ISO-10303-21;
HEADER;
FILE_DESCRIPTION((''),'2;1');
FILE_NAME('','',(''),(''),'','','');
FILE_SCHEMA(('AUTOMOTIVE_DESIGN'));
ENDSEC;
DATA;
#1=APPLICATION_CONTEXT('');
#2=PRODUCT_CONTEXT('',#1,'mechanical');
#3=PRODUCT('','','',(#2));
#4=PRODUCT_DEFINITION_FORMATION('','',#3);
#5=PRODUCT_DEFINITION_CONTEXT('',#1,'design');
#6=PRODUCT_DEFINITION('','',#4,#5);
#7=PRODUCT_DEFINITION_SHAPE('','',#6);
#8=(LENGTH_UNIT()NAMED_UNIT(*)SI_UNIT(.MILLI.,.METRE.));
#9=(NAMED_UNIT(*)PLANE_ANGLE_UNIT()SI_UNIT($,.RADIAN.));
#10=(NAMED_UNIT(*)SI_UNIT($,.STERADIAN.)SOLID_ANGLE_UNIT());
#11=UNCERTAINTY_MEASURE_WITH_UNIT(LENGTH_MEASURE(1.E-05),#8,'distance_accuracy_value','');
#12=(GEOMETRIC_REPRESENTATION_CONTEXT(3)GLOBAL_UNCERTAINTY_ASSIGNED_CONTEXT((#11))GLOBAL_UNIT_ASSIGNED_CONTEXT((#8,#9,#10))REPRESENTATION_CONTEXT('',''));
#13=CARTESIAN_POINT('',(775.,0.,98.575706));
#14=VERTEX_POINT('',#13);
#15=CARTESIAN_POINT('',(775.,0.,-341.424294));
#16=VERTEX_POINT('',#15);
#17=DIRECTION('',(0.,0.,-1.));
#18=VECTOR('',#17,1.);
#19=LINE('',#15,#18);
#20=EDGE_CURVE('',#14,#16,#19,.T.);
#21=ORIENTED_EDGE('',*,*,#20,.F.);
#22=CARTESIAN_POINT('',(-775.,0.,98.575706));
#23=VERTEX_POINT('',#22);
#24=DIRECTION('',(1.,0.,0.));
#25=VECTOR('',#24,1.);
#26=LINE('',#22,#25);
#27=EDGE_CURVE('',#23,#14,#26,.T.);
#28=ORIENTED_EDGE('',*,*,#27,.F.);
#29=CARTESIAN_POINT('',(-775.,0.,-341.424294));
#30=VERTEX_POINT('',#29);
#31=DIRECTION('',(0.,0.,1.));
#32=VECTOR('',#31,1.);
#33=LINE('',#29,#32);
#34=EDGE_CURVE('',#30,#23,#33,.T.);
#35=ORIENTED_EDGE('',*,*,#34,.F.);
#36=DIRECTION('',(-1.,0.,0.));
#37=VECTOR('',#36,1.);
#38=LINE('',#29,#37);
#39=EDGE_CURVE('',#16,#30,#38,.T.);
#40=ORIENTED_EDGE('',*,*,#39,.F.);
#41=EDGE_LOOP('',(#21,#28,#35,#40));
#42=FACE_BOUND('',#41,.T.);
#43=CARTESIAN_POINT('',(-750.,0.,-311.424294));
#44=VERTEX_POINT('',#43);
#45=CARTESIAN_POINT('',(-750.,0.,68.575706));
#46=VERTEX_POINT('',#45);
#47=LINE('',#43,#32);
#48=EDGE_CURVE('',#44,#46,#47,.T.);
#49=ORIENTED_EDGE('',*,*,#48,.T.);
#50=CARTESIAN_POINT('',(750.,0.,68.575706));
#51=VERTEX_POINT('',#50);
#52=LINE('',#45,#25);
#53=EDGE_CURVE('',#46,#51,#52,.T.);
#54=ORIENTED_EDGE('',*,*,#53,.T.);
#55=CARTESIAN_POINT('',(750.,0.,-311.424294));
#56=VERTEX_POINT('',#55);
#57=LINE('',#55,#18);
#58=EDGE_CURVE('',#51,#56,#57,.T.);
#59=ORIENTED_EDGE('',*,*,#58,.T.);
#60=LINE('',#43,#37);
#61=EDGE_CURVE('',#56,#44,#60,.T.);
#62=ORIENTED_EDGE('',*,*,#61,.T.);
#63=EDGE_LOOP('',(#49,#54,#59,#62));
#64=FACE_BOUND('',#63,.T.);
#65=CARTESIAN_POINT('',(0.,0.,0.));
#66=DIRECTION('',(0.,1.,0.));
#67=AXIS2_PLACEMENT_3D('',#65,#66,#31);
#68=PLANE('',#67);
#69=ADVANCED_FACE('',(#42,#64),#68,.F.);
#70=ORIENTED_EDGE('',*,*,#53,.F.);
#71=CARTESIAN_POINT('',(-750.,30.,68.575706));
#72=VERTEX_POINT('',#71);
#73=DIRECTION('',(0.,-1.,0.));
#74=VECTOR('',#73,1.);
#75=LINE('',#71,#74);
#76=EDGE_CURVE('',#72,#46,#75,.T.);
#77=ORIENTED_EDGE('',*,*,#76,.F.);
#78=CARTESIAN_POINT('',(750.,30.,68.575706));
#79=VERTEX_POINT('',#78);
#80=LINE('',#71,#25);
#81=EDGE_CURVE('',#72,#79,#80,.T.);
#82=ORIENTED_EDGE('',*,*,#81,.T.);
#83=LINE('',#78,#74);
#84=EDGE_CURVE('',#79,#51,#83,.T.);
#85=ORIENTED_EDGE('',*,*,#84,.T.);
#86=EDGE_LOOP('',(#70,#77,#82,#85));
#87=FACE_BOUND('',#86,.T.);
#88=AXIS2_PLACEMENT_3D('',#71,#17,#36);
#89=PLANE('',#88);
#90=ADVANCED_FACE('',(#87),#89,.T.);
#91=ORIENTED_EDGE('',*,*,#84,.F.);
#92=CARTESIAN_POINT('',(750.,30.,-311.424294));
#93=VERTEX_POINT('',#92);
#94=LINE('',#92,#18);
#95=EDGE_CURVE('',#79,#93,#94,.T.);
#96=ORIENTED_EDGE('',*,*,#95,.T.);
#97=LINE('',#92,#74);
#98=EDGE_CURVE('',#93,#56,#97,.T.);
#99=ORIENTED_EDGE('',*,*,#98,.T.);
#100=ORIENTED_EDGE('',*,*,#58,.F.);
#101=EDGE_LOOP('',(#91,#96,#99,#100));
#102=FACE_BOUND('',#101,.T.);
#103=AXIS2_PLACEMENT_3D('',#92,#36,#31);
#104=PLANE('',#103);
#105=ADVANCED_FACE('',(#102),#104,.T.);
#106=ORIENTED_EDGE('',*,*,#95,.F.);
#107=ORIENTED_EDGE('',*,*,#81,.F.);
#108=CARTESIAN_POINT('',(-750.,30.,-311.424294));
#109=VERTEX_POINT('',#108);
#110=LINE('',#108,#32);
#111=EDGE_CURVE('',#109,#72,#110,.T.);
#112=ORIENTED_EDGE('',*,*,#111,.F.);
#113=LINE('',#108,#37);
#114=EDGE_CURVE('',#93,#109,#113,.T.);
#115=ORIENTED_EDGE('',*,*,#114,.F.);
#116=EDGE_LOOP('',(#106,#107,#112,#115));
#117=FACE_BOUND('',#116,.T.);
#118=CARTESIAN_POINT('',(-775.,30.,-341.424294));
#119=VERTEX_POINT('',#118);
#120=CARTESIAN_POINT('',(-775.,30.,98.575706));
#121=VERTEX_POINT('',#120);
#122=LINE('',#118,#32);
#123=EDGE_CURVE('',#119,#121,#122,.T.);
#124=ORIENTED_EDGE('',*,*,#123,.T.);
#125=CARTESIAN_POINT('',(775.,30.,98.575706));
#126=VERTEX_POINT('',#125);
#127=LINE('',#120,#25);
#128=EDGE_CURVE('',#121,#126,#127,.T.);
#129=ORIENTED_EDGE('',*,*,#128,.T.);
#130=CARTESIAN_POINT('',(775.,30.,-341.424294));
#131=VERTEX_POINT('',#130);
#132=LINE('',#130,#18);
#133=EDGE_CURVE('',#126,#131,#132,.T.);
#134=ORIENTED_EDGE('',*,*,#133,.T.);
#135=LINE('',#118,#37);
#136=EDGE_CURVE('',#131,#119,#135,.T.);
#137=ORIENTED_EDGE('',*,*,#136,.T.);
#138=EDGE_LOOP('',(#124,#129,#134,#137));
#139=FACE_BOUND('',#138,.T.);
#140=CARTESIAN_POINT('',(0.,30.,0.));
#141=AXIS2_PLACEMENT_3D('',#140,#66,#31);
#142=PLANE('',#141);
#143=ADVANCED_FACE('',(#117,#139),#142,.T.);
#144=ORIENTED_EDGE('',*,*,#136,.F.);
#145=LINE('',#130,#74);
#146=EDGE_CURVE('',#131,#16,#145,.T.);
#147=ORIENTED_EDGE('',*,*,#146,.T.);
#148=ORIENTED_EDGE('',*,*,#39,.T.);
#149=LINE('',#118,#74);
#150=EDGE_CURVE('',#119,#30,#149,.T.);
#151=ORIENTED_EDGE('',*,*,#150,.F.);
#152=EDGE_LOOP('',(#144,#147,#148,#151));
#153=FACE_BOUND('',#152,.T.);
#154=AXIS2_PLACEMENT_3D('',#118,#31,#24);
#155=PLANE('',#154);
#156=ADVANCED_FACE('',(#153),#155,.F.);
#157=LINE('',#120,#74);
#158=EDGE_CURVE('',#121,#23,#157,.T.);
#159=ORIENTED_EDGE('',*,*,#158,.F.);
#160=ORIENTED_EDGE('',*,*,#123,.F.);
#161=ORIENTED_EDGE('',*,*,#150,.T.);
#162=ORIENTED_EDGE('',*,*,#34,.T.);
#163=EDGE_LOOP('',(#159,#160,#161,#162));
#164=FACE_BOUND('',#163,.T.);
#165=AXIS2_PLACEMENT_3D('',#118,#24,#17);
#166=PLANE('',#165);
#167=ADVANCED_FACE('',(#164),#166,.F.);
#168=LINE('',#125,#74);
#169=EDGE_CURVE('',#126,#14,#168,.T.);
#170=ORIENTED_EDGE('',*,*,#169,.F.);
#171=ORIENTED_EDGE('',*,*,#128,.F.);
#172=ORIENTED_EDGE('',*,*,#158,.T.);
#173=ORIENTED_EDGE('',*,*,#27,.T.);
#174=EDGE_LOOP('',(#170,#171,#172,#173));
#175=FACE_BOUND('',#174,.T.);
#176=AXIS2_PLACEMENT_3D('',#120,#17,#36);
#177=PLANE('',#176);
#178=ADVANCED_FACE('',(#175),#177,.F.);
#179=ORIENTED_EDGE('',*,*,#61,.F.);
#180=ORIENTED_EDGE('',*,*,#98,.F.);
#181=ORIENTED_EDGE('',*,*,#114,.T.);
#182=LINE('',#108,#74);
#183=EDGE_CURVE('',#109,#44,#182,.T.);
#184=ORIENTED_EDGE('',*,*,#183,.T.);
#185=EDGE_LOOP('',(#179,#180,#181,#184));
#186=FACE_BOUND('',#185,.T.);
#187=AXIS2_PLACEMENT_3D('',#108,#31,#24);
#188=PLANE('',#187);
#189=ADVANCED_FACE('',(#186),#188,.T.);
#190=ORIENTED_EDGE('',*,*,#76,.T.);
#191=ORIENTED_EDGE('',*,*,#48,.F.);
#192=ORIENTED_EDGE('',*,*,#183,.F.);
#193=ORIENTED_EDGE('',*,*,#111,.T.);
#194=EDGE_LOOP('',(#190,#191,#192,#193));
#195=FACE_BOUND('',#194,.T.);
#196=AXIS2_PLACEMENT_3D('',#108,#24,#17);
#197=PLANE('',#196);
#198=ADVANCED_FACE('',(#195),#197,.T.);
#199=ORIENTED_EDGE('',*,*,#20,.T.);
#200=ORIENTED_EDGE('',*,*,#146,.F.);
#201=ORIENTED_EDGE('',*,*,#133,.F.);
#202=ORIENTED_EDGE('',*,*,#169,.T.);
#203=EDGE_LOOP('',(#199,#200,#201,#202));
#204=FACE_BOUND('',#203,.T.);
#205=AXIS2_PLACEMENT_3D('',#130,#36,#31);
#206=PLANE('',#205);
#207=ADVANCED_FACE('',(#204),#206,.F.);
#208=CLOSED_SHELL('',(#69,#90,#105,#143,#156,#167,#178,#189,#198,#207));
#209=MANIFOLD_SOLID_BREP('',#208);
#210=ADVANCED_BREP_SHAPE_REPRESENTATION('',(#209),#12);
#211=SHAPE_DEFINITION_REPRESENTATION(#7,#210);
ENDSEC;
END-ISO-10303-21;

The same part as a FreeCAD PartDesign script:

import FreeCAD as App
import Part
import Sketcher
Q = App.Units.Quantity


def add_polygon(sketch, points):
    """Adds a closed chain of lines whose ends are joined by coincident constraints."""
    first, n = sketch.GeometryCount, len(points)
    for a, b in zip(points, points[1:] + points[:1]):
        sketch.addGeometry(Part.LineSegment(App.Vector(*a, 0), App.Vector(*b, 0)), False)
    for i in range(n):
        sketch.addConstraint(Sketcher.Constraint("Coincident", first + i, 2, first + (i + 1) % n, 1))

doc = App.newDocument("Part")
body = doc.addObject("PartDesign::Body", "Body")

# Sketch on XZ plane
sketch1 = doc.addObject("Sketcher::SketchObject", "Sketch")
body.addObject(sketch1)
sketch1.AttachmentSupport = (doc.XZ_Plane, [""])
sketch1.MapMode = "FlatFace"
add_polygon(sketch1, [(-775, -341.424294), (-775, 98.575706), (775, 98.575706), (775, -341.424294)])  # lines 0-3
add_polygon(sketch1, [(750, 68.575706), (-750, 68.575706), (-750, -311.424294), (750, -311.424294)])  # lines 4-7
sketch1.addConstraint([
    Sketcher.Constraint("Vertical", 0),
    Sketcher.Constraint("Horizontal", 1),
    Sketcher.Constraint("Vertical", 2),
    Sketcher.Constraint("Horizontal", 3),
    Sketcher.Constraint("Horizontal", 4),
    Sketcher.Constraint("Vertical", 5),
    Sketcher.Constraint("Horizontal", 6),
    Sketcher.Constraint("Vertical", 7),
    Sketcher.Constraint("DistanceX", 1, 1, 1, 2, Q("1550 mm")),
    Sketcher.Constraint("DistanceX", 4, 2, 4, 1, Q("1500 mm")),
    Sketcher.Constraint("DistanceY", 0, 1, 0, 2, Q("440 mm")),
    Sketcher.Constraint("DistanceY", 5, 2, 5, 1, Q("380 mm")),
    Sketcher.Constraint("DistanceX", 0, 2, -1, 1, Q("775 mm")),
    Sketcher.Constraint("DistanceX", 4, 2, -1, 1, Q("750 mm")),
    Sketcher.Constraint("DistanceY", 4, 2, 0, 2, Q("30 mm")),
    Sketcher.Constraint("DistanceY", -1, 1, 0, 2, Q("98.575706 mm")),
])
pad1 = doc.addObject("PartDesign::Pad", "Pad")
body.addObject(pad1)
pad1.Profile = sketch1
pad1.Length = 30
pad1.Reversed = True

doc.recompute()
